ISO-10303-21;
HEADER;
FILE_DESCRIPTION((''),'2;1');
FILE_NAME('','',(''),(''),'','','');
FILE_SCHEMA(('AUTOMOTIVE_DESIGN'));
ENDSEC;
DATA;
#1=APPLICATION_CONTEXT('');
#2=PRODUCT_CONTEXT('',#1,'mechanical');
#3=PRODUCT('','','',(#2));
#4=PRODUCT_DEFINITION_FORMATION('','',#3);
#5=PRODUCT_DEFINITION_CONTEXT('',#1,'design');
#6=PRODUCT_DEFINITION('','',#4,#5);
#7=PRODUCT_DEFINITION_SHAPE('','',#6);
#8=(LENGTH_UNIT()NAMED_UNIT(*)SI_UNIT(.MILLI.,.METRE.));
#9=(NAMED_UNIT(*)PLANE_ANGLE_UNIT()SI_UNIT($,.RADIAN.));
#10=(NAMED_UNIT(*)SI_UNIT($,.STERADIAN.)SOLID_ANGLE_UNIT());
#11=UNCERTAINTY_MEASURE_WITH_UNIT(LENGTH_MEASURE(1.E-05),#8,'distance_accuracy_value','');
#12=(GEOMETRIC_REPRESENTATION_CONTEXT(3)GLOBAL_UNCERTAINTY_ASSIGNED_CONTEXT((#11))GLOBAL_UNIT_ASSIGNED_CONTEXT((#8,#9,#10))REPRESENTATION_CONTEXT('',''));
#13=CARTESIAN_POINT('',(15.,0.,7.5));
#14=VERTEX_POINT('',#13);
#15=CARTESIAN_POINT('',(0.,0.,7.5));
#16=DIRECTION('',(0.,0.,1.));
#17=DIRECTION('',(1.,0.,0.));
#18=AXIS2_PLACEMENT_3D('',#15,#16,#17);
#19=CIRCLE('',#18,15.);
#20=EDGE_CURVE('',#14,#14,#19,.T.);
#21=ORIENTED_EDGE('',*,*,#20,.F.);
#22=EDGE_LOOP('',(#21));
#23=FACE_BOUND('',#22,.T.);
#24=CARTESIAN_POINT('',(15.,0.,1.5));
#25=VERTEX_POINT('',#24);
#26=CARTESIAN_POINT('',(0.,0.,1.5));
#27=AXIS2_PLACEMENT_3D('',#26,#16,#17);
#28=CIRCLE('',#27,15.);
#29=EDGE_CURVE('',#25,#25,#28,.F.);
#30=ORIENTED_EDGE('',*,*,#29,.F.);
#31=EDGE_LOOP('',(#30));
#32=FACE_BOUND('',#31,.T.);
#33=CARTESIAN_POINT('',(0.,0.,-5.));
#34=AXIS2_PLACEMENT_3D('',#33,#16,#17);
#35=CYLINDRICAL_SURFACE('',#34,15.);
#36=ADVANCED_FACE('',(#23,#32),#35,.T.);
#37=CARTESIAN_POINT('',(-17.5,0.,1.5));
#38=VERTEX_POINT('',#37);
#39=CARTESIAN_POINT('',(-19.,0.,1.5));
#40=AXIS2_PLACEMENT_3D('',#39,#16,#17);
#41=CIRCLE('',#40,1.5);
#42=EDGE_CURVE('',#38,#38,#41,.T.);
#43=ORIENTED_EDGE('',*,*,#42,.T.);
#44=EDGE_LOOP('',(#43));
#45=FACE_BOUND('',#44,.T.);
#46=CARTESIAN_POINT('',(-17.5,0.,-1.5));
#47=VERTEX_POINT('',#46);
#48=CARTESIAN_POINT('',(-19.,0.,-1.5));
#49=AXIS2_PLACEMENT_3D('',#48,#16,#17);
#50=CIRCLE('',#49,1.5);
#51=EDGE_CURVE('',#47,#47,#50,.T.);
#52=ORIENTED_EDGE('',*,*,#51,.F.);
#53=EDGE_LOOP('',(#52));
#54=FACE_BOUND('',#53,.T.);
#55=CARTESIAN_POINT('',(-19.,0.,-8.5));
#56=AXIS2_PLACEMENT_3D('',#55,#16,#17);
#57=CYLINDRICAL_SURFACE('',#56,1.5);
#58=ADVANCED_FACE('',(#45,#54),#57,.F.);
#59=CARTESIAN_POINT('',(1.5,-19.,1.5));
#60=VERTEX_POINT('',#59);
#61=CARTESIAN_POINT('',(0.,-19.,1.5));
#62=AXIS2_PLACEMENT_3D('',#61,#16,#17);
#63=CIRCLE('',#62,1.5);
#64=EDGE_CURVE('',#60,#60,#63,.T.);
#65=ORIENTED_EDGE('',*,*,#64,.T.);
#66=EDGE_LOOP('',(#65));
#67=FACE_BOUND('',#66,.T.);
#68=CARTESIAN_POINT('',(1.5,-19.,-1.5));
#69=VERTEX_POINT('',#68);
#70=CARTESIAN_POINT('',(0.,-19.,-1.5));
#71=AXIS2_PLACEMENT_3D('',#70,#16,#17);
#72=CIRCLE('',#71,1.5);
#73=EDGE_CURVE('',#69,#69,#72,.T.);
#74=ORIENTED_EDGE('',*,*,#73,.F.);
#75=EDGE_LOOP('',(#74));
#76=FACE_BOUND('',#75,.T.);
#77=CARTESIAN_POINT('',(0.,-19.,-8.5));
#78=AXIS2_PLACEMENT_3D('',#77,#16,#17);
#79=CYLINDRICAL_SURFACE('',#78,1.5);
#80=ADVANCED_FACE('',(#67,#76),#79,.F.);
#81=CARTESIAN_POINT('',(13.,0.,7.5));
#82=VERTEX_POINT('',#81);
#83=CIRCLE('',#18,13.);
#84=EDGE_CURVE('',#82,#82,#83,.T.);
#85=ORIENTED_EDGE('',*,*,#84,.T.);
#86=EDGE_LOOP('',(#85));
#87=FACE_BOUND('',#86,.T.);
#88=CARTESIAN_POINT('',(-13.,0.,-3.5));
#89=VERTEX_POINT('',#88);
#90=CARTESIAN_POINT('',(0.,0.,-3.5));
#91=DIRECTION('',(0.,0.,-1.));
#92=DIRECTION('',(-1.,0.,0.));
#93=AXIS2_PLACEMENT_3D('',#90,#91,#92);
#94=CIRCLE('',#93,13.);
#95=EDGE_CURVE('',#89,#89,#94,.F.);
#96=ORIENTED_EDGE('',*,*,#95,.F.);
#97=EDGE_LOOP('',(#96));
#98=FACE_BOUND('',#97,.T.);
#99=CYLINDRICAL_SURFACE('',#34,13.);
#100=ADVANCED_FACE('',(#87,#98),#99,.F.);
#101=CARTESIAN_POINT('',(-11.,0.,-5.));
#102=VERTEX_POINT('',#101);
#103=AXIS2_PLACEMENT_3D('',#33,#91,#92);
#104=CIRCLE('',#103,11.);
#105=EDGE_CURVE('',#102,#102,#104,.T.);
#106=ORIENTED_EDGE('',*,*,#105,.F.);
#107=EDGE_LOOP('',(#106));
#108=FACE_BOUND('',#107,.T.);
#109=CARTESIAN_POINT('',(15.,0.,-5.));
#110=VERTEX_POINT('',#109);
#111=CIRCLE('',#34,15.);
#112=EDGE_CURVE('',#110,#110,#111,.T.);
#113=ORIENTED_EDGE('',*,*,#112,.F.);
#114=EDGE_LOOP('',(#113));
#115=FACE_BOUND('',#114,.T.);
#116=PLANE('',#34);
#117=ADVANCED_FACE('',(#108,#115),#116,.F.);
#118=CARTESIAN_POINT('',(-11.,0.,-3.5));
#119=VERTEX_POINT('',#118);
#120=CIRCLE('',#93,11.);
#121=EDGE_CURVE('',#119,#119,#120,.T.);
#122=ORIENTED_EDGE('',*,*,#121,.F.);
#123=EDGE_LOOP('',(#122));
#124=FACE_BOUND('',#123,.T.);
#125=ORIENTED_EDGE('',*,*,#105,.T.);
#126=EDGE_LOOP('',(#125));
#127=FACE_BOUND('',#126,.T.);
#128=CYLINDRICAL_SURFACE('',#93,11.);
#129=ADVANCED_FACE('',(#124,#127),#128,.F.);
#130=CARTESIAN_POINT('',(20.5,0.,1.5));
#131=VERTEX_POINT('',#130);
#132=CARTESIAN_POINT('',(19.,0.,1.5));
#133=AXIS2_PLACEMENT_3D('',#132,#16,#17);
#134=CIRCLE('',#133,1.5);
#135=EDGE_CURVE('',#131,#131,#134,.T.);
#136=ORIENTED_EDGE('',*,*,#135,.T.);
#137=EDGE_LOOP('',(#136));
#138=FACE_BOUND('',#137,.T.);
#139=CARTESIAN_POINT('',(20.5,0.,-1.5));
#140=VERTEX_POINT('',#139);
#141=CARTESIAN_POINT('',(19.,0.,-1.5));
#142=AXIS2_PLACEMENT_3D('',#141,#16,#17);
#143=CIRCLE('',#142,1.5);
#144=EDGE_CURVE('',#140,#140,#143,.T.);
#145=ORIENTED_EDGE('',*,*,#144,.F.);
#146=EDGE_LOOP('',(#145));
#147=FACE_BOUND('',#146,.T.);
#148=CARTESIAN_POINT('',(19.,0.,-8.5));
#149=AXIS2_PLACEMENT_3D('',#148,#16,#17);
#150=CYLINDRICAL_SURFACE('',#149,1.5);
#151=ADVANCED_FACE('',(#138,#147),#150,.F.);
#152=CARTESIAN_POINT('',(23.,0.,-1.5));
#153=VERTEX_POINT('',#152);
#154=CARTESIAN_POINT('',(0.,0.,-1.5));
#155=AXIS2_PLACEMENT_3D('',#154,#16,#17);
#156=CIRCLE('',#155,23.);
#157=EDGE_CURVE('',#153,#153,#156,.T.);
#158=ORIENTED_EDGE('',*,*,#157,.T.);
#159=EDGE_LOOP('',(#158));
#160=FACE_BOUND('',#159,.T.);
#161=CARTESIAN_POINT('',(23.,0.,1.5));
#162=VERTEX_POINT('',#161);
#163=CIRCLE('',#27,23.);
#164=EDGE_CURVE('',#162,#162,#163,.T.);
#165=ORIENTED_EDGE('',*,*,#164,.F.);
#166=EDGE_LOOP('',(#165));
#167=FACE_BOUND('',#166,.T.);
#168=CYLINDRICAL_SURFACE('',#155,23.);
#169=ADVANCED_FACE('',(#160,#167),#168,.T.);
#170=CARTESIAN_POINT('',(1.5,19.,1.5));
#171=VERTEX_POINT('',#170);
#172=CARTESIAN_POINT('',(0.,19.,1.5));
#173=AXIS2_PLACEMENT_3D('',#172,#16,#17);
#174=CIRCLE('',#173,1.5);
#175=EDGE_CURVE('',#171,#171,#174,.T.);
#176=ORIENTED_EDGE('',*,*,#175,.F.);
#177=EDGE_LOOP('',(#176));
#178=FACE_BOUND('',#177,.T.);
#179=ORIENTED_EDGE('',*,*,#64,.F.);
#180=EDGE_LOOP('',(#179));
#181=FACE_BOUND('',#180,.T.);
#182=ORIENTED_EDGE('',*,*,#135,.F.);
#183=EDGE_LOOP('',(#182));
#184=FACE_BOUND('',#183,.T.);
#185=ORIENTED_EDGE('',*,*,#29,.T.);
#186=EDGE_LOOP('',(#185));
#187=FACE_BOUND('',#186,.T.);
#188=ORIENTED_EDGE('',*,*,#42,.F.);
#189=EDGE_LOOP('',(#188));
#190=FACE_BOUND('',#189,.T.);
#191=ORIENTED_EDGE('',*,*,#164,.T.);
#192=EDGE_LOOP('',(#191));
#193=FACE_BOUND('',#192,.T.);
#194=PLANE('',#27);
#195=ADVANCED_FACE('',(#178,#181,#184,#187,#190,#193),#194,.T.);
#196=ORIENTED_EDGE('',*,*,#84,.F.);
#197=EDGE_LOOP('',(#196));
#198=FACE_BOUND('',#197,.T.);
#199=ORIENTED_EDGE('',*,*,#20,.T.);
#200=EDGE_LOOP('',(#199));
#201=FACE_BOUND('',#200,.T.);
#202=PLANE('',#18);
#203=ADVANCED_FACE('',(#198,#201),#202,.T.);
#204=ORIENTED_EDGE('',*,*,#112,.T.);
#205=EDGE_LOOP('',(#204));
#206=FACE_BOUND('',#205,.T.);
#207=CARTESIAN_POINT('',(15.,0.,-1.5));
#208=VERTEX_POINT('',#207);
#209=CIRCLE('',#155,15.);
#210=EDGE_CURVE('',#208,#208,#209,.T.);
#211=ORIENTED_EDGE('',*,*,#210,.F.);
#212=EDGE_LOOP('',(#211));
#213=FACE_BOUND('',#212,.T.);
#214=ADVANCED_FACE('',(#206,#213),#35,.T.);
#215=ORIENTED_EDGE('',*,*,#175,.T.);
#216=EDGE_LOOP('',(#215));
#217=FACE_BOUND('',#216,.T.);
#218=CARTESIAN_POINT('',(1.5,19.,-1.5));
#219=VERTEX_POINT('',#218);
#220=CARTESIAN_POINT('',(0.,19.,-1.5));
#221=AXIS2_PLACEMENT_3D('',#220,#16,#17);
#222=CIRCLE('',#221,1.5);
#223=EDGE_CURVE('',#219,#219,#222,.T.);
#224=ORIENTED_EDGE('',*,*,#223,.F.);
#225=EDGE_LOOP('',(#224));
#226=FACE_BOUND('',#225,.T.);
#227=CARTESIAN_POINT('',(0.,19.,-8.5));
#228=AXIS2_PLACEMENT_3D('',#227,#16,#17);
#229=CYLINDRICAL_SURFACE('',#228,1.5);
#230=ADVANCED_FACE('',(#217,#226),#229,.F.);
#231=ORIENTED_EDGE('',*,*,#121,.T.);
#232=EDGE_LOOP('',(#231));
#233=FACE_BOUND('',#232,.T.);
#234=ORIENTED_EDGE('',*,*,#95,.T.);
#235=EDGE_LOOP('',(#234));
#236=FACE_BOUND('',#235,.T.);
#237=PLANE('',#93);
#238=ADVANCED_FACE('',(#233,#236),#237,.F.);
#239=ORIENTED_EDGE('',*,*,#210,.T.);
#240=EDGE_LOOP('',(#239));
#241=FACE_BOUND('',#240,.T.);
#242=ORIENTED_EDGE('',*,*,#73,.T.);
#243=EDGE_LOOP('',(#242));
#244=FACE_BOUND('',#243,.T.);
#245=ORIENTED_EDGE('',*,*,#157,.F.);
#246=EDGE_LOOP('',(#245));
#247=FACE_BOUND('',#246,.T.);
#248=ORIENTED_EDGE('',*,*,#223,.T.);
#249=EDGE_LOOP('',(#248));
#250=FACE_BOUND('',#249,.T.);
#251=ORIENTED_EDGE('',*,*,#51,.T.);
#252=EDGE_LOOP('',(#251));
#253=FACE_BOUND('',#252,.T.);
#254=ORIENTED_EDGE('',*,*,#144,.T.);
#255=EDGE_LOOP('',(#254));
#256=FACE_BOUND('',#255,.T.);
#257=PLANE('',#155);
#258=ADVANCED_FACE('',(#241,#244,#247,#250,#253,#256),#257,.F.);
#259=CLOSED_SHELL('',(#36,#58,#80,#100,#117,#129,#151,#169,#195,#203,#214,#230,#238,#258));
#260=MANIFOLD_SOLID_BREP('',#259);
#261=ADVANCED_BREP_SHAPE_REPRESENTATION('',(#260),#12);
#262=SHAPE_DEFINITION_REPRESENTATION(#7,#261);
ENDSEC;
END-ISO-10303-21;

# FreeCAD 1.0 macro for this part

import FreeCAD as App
import Part
import Sketcher

doc = App.newDocument("Part")
params = doc.addObject("Spreadsheet::Sheet", "Params")
for row, (alias, value) in enumerate([
    ("sketch1_diameter", "30 mm"),
    ("sketch1_diameter2", "26 mm"),
    ("pad1_length", "7.5 mm"),
    ("pad1_length2", "5 mm"),
    ("sketch2_diameter", "46 mm"),
    ("sketch2_diameter2", "30 mm"),
    ("pad2_length", "1.5 mm"),
    ("pad2_length2", "1.5 mm"),
    ("sketch3_diameter", "26 mm"),
    ("sketch3_diameter2", "22 mm"),
    ("pad3_length", "1.5 mm"),
    ("sketch4_diameter", "3 mm"),
    ("pocket1_length", "10 mm"),
], start=1):
    params.set(f"A{row}", alias)
    params.set(f"B{row}", "=" + value)
    params.setAlias(f"B{row}", alias)

body = doc.addObject("PartDesign::Body", "Body")

sketch1 = body.newObject("Sketcher::SketchObject", "Sketch")
sketch1.AttachmentSupport = (doc.getObject("XY_Plane"), [""])
sketch1.MapMode = "FlatFace"
sketch1.addGeometry([
    Part.Circle(App.Vector(0, 0, 0), App.Vector(0, 0, 1), 15),
    Part.Circle(App.Vector(0, 0, 0), App.Vector(0, 0, 1), 13),
], False)
sketch1.addConstraint([
    Sketcher.Constraint("Coincident", 0, 3, -1, 1),
    Sketcher.Constraint("Coincident", 1, 3, -1, 1),
    Sketcher.Constraint("Diameter", 0, 30.0),
    Sketcher.Constraint("Diameter", 1, 26.0),
])
sketch1.setExpression("Constraints[2]", "Params.sketch1_diameter")
sketch1.setExpression("Constraints[3]", "Params.sketch1_diameter2")
pad1 = body.newObject("PartDesign::Pad", "Pad")
pad1.Profile = sketch1
pad1.Type = "TwoLengths"
pad1.setExpression("Length", "Params.pad1_length")
pad1.setExpression("Length2", "Params.pad1_length2")

sketch2 = body.newObject("Sketcher::SketchObject", "Sketch001")
sketch2.AttachmentSupport = (doc.getObject("XY_Plane"), [""])
sketch2.MapMode = "FlatFace"
sketch2.addGeometry([
    Part.Circle(App.Vector(0, 0, 0), App.Vector(0, 0, 1), 23),
    Part.Circle(App.Vector(0, 0, 0), App.Vector(0, 0, 1), 15),
], False)
sketch2.addConstraint([
    Sketcher.Constraint("Coincident", 0, 3, -1, 1),
    Sketcher.Constraint("Coincident", 1, 3, -1, 1),
    Sketcher.Constraint("Diameter", 0, 46.0),
    Sketcher.Constraint("Diameter", 1, 30.0),
])
sketch2.setExpression("Constraints[2]", "Params.sketch2_diameter")
sketch2.setExpression("Constraints[3]", "Params.sketch2_diameter2")
pad2 = body.newObject("PartDesign::Pad", "Pad001")
pad2.Profile = sketch2
pad2.Type = "TwoLengths"
pad2.setExpression("Length", "Params.pad2_length")
pad2.setExpression("Length2", "Params.pad2_length2")

sketch3 = body.newObject("Sketcher::SketchObject", "Sketch002")
sketch3.AttachmentSupport = (doc.getObject("XY_Plane"), [""])
sketch3.MapMode = "FlatFace"
sketch3.AttachmentOffset = App.Placement(App.Vector(0, 0, -5), App.Rotation())
sketch3.addGeometry([
    Part.Circle(App.Vector(0, 0, 0), App.Vector(0, 0, 1), 13),
    Part.Circle(App.Vector(0, 0, 0), App.Vector(0, 0, 1), 11),
], False)
sketch3.addConstraint([
    Sketcher.Constraint("Coincident", 0, 3, -1, 1),
    Sketcher.Constraint("Coincident", 1, 3, -1, 1),
    Sketcher.Constraint("Diameter", 0, 26.0),
    Sketcher.Constraint("Diameter", 1, 22.0),
])
sketch3.setExpression("Constraints[2]", "Params.sketch3_diameter")
sketch3.setExpression("Constraints[3]", "Params.sketch3_diameter2")
pad3 = body.newObject("PartDesign::Pad", "Pad002")
pad3.Profile = sketch3
pad3.setExpression("Length", "Params.pad3_length")

sketch4 = body.newObject("Sketcher::SketchObject", "Sketch003")
sketch4.AttachmentSupport = (doc.getObject("XY_Plane"), [""])
sketch4.MapMode = "FlatFace"
sketch4.AttachmentOffset = App.Placement(App.Vector(0, 0, 1.5), App.Rotation())
sketch4.addGeometry([
    Part.Circle(App.Vector(0, 19, 0), App.Vector(0, 0, 1), 1.5),
    Part.Circle(App.Vector(19, 0, 0), App.Vector(0, 0, 1), 1.5),
    Part.Circle(App.Vector(0, -19, 0), App.Vector(0, 0, 1), 1.5),
    Part.Circle(App.Vector(-19, 0, 0), App.Vector(0, 0, 1), 1.5),
], False)
sketch4.addConstraint([
    Sketcher.Constraint("Equal", 0, 1),
    Sketcher.Constraint("Equal", 1, 2),
    Sketcher.Constraint("Equal", 2, 3),
    Sketcher.Constraint("Symmetric", 0, 3, 2, 3, -1, 1),
    Sketcher.Constraint("Symmetric", 1, 3, 3, 3, -1, 1),
    Sketcher.Constraint("PointOnObject", 0, 3, -2),
    Sketcher.Constraint("PointOnObject", 1, 3, -1),
    Sketcher.Constraint("Diameter", 0, 3.0),
    Sketcher.Constraint("DistanceY", -1, 1, 0, 3, 19.0),
    Sketcher.Constraint("DistanceX", -1, 1, 1, 3, 19.0),
])
sketch4.setExpression("Constraints[7]", "Params.sketch4_diameter")
pocket1 = body.newObject("PartDesign::Pocket", "Pocket")
pocket1.Profile = sketch4
pocket1.setExpression("Length", "Params.pocket1_length")

doc.recompute()
